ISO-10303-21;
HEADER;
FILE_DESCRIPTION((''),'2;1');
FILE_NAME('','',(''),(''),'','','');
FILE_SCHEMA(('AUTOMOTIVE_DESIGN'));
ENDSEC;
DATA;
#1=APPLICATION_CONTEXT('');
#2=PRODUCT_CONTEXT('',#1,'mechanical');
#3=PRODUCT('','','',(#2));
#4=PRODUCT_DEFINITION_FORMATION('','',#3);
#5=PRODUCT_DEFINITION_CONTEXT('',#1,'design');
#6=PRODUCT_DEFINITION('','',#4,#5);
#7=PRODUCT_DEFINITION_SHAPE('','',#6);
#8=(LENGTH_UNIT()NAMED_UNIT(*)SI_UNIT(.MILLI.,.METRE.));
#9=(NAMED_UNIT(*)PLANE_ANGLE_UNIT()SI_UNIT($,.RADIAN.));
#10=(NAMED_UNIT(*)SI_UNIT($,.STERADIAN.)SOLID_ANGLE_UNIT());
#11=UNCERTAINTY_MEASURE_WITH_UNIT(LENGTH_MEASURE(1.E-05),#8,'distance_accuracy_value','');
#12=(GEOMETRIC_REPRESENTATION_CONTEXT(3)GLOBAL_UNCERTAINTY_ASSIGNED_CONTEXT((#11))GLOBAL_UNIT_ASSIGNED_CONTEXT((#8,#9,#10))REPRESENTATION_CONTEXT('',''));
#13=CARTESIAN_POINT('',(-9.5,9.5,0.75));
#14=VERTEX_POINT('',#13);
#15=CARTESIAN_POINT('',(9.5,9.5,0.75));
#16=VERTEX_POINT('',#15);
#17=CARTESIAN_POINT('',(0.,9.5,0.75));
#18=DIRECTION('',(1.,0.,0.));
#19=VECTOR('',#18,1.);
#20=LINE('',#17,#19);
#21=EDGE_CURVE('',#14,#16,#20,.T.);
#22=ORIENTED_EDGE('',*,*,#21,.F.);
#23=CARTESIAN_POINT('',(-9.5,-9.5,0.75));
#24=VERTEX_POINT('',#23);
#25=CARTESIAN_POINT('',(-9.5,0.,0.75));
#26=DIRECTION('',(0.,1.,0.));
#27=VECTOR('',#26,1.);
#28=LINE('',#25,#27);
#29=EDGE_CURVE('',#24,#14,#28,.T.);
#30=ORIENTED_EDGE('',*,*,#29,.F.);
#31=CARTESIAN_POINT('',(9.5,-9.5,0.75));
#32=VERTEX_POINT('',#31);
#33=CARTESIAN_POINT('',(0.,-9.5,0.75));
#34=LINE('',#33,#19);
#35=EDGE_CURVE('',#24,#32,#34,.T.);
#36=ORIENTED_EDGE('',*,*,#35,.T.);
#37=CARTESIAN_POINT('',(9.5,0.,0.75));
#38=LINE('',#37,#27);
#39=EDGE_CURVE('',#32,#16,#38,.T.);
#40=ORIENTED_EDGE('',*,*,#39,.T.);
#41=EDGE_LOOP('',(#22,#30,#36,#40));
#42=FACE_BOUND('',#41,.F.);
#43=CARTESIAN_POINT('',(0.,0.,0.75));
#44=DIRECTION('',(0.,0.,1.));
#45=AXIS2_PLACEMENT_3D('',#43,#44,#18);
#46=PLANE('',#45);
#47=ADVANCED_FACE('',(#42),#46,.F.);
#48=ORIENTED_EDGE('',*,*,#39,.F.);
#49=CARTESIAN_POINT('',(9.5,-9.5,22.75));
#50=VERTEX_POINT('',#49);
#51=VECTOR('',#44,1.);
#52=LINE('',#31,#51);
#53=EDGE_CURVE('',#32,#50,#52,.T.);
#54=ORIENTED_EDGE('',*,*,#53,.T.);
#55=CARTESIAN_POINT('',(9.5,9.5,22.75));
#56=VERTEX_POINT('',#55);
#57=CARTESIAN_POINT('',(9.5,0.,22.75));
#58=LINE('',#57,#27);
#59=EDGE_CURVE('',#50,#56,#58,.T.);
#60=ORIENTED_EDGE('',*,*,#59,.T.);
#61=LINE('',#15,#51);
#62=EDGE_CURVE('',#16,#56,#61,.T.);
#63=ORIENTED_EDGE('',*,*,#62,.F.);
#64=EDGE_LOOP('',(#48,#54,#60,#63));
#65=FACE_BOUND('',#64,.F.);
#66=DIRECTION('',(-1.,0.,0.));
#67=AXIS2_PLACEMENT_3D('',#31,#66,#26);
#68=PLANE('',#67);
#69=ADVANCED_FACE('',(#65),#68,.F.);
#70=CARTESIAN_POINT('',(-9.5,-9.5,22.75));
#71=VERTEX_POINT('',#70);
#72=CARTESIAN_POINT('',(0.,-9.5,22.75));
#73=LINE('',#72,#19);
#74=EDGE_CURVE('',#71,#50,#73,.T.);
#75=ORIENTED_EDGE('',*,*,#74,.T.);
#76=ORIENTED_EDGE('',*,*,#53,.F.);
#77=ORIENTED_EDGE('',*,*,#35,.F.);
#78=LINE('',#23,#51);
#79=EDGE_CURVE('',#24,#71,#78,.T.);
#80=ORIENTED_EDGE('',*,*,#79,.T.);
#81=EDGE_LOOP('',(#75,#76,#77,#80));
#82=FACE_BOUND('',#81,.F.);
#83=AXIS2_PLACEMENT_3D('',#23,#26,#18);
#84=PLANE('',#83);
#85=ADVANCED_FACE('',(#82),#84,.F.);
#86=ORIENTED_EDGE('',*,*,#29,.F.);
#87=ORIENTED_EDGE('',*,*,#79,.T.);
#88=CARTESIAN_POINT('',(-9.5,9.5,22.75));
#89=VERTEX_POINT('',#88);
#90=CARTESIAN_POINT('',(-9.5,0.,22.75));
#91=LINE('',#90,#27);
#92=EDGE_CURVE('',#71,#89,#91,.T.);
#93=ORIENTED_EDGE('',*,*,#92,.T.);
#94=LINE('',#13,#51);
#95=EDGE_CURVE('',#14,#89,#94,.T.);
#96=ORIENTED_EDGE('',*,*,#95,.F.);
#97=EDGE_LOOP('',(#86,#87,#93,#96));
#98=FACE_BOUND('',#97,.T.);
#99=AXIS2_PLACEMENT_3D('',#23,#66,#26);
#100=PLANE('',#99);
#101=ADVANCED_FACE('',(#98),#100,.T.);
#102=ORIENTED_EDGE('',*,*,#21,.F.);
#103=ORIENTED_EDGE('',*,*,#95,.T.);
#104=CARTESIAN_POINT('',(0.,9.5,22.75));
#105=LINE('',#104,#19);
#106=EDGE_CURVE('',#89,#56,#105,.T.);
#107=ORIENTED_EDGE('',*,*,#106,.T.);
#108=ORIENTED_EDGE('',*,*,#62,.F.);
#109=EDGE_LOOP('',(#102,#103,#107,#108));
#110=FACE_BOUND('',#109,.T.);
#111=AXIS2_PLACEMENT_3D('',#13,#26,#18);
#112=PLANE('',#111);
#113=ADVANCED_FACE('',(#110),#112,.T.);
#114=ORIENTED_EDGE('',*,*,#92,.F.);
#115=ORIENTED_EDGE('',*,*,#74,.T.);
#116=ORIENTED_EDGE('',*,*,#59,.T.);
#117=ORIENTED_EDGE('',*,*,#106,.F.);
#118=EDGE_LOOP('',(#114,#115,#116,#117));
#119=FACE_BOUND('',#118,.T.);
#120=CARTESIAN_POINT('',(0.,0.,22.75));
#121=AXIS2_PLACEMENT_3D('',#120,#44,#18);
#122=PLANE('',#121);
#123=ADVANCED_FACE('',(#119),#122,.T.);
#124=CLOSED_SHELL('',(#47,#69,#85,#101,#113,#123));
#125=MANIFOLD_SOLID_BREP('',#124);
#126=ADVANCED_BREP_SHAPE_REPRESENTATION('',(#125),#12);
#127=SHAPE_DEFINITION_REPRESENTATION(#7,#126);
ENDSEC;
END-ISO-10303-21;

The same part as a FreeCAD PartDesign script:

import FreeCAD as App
import Part
import Sketcher
from FreeCAD import Vector


def add_polygon(sketch, points):
    """Adds a closed chain of lines whose ends are joined by coincident constraints."""
    first, n = sketch.GeometryCount, len(points)
    for a, b in zip(points, points[1:] + points[:1]):
        sketch.addGeometry(Part.LineSegment(App.Vector(*a, 0), App.Vector(*b, 0)), False)
    for i in range(n):
        sketch.addConstraint(Sketcher.Constraint("Coincident", first + i, 2, first + (i + 1) % n, 1))

doc = App.newDocument("Part")
body = doc.addObject("PartDesign::Body", "Body")

sketch1 = doc.addObject("Sketcher::SketchObject", "Sketch")
body.addObject(sketch1)
sketch1.AttachmentSupport = (doc.XY_Plane, [""])
sketch1.MapMode = "FlatFace"
sketch1.AttachmentOffset = App.Placement(Vector(0, 0, -11), App.Rotation())
add_polygon(sketch1, [(0, 8), (0, 0), (8, 0), (8, 8)])
sketch1.addConstraint(Sketcher.Constraint("Vertical", 0))
sketch1.addConstraint(Sketcher.Constraint("Horizontal", 1))
sketch1.addConstraint(Sketcher.Constraint("Vertical", 2))
sketch1.addConstraint(Sketcher.Constraint("Horizontal", 3))
sketch1.addConstraint(Sketcher.Constraint("Equal", 3, 0))
sketch1.addConstraint(Sketcher.Constraint("DistanceX", 1, 1, 1, 2, 8.0))
sketch1.addConstraint(Sketcher.Constraint("DistanceX", -1, 1, 0, 2, 0.5))
sketch1.addConstraint(Sketcher.Constraint("DistanceY", -1, 1, 0, 2, 0.5))
pad1 = doc.addObject("PartDesign::Pad", "Pad")
body.addObject(pad1)
pad1.Profile = sketch1
pad1.Length = 22
body2 = doc.addObject("PartDesign::Body", "Body001")
body2.AllowCompound = True

sketch2 = doc.addObject("Sketcher::SketchObject", "Sketch001")
body2.addObject(sketch2)
sketch2.AttachmentSupport = (doc.getObject("XY_Plane001"), [""])
sketch2.MapMode = "FlatFace"
sketch2.AttachmentOffset = App.Placement(Vector(0, 0, -11), App.Rotation())
add_polygon(sketch2, [(0, 0), (0, -8), (8, -8), (8, 0)])
sketch2.addConstraint(Sketcher.Constraint("Vertical", 0))
sketch2.addConstraint(Sketcher.Constraint("Horizontal", 1))
sketch2.addConstraint(Sketcher.Constraint("Vertical", 2))
sketch2.addConstraint(Sketcher.Constraint("Horizontal", 3))
sketch2.addConstraint(Sketcher.Constraint("Equal", 3, 0))
sketch2.addConstraint(Sketcher.Constraint("DistanceX", 1, 1, 1, 2, 8.0))
sketch2.addConstraint(Sketcher.Constraint("DistanceX", -1, 1, 0, 2, 0.5))
sketch2.addConstraint(Sketcher.Constraint("DistanceY", 0, 2, -1, 1, 8.5))
pad2 = doc.addObject("PartDesign::Pad", "Pad001")
body2.addObject(pad2)
pad2.Profile = sketch2
pad2.Length = 22
doc.recompute()

boolean = doc.addObject("PartDesign::Boolean", "Boolean")
body2.addObject(boolean)
boolean.Type = "Fuse"
boolean.addObjects([body])
body3 = doc.addObject("PartDesign::Body", "Body002")

sketch3 = doc.addObject("Sketcher::SketchObject", "Sketch002")
body3.addObject(sketch3)
sketch3.AttachmentSupport = (doc.getObject("XY_Plane002"), [""])
sketch3.MapMode = "FlatFace"
sketch3.AttachmentOffset = App.Placement(Vector(0, 0, -11), App.Rotation())
add_polygon(sketch3, [(-8, 8), (-8, 0), (0, 0), (0, 8)])
sketch3.addConstraint(Sketcher.Constraint("Vertical", 0))
sketch3.addConstraint(Sketcher.Constraint("Horizontal", 1))
sketch3.addConstraint(Sketcher.Constraint("Vertical", 2))
sketch3.addConstraint(Sketcher.Constraint("Horizontal", 3))
sketch3.addConstraint(Sketcher.Constraint("Equal", 3, 0))
sketch3.addConstraint(Sketcher.Constraint("DistanceX", 1, 1, 1, 2, 8.0))
sketch3.addConstraint(Sketcher.Constraint("DistanceX", 0, 2, -1, 1, 8.5))
sketch3.addConstraint(Sketcher.Constraint("DistanceY", -1, 1, 0, 2, 0.5))
pad3 = doc.addObject("PartDesign::Pad", "Pad002")
body3.addObject(pad3)
pad3.Profile = sketch3
pad3.Length = 22
body4 = doc.addObject("PartDesign::Body", "Body003")
body4.AllowCompound = True

sketch4 = doc.addObject("Sketcher::SketchObject", "Sketch003")
body4.addObject(sketch4)
sketch4.AttachmentSupport = (doc.getObject("XY_Plane003"), [""])
sketch4.MapMode = "FlatFace"
sketch4.AttachmentOffset = App.Placement(Vector(0, 0, -11), App.Rotation())
add_polygon(sketch4, [(-8, 0), (-8, -8), (0, -8), (0, 0)])
sketch4.addConstraint(Sketcher.Constraint("Vertical", 0))
sketch4.addConstraint(Sketcher.Constraint("Horizontal", 1))
sketch4.addConstraint(Sketcher.Constraint("Vertical", 2))
sketch4.addConstraint(Sketcher.Constraint("Horizontal", 3))
sketch4.addConstraint(Sketcher.Constraint("Equal", 3, 0))
sketch4.addConstraint(Sketcher.Constraint("DistanceX", 1, 1, 1, 2, 8.0))
sketch4.addConstraint(Sketcher.Constraint("DistanceX", 0, 2, -1, 1, 8.5))
sketch4.addConstraint(Sketcher.Constraint("DistanceY", 0, 2, -1, 1, 8.5))
pad4 = doc.addObject("PartDesign::Pad", "Pad003")
body4.addObject(pad4)
pad4.Profile = sketch4
pad4.Length = 22
doc.recompute()

boolean2 = doc.addObject("PartDesign::Boolean", "Boolean001")
body4.addObject(boolean2)
boolean2.Type = "Fuse"
boolean2.addObjects([body3])
doc.recompute()

boolean3 = doc.addObject("PartDesign::Boolean", "Boolean002")
body4.addObject(boolean3)
boolean3.Type = "Fuse"
boolean3.addObjects([body2])
body5 = doc.addObject("PartDesign::Body", "Body004")

sketch5 = doc.addObject("Sketcher::SketchObject", "Sketch004")
body5.addObject(sketch5)
sketch5.AttachmentSupport = (doc.getObject("XY_Plane004"), [""])
sketch5.MapMode = "FlatFace"
sketch5.AttachmentOffset = App.Placement(Vector(0, 0, -11), App.Rotation())
add_polygon(sketch5, [(-9, 0.5), (-9, -0.5), (9, -0.5), (9, 0.5)])
sketch5.addConstraint(Sketcher.Constraint("Vertical", 0))
sketch5.addConstraint(Sketcher.Constraint("Horizontal", 1))
sketch5.addConstraint(Sketcher.Constraint("Vertical", 2))
sketch5.addConstraint(Sketcher.Constraint("Horizontal", 3))
sketch5.addConstraint(Sketcher.Constraint("Symmetric", 0, 2, 2, 2, -1, 1))
sketch5.addConstraint(Sketcher.Constraint("DistanceX", 1, 1, 1, 2, 18.0))
sketch5.addConstraint(Sketcher.Constraint("DistanceY", 0, 2, 0, 1, 1.0))
pad5 = doc.addObject("PartDesign::Pad", "Pad004")
body5.addObject(pad5)
pad5.Profile = sketch5
pad5.Length = 22
body6 = doc.addObject("PartDesign::Body", "Body005")

sketch6 = doc.addObject("Sketcher::SketchObject", "Sketch005")
body6.addObject(sketch6)
sketch6.AttachmentSupport = (doc.getObject("XY_Plane005"), [""])
sketch6.MapMode = "FlatFace"
sketch6.AttachmentOffset = App.Placement(Vector(0, 0, -11), App.Rotation())
add_polygon(sketch6, [(-0.5, 9), (-0.5, -9), (0.5, -9), (0.5, 9)])
sketch6.addConstraint(Sketcher.Constraint("Vertical", 0))
sketch6.addConstraint(Sketcher.Constraint("Horizontal", 1))
sketch6.addConstraint(Sketcher.Constraint("Vertical", 2))
sketch6.addConstraint(Sketcher.Constraint("Horizontal", 3))
sketch6.addConstraint(Sketcher.Constraint("Symmetric", 0, 2, 2, 2, -1, 1))
sketch6.addConstraint(Sketcher.Constraint("DistanceX", 1, 1, 1, 2, 1.0))
sketch6.addConstraint(Sketcher.Constraint("DistanceY", 0, 2, 0, 1, 18.0))
pad6 = doc.addObject("PartDesign::Pad", "Pad005")
body6.addObject(pad6)
pad6.Profile = sketch6
pad6.Length = 22
doc.recompute()

boolean4 = doc.addObject("PartDesign::Boolean", "Boolean003")
body6.addObject(boolean4)
boolean4.Type = "Fuse"
boolean4.addObjects([body5])
body7 = doc.addObject("PartDesign::Body", "Body006")

sketch7 = doc.addObject("Sketcher::SketchObject", "Sketch006")
body7.addObject(sketch7)
sketch7.AttachmentSupport = (doc.getObject("XY_Plane006"), [""])
sketch7.MapMode = "FlatFace"
sketch7.AttachmentOffset = App.Placement(Vector(0, 0, -11), App.Rotation())
add_polygon(sketch7, [(-10, 10), (-10, -10), (10, -10), (10, 10)])
sketch7.addConstraint(Sketcher.Constraint("Vertical", 0))
sketch7.addConstraint(Sketcher.Constraint("Horizontal", 1))
sketch7.addConstraint(Sketcher.Constraint("Vertical", 2))
sketch7.addConstraint(Sketcher.Constraint("Horizontal", 3))
sketch7.addConstraint(Sketcher.Constraint("Symmetric", 0, 2, 2, 2, -1, 1))
sketch7.addConstraint(Sketcher.Constraint("Equal", 3, 0))
sketch7.addConstraint(Sketcher.Constraint("DistanceX", 1, 1, 1, 2, 19.0))
pad7 = doc.addObject("PartDesign::Pad", "Pad006")
body7.addObject(pad7)
pad7.Profile = sketch7
pad7.Length = 22
doc.recompute()

boolean5 = doc.addObject("PartDesign::Boolean", "Boolean004")
body7.addObject(boolean5)
boolean5.Type = "Fuse"
boolean5.addObjects([body4])
doc.recompute()

boolean6 = doc.addObject("PartDesign::Boolean", "Boolean005")
body7.addObject(boolean6)
boolean6.Type = "Fuse"
boolean6.addObjects([body6])
body8 = doc.addObject("PartDesign::Body", "Body007")
doc.recompute()

body7.Placement = App.Placement(Vector(0, 0, 11.75), App.Rotation(Vector(0, 0, 1), 0))
boolean7 = doc.addObject("PartDesign::Boolean", "Boolean006")
body8.addObject(boolean7)
boolean7.Type = "Fuse"
boolean7.addObjects([body7])

doc.recompute()
